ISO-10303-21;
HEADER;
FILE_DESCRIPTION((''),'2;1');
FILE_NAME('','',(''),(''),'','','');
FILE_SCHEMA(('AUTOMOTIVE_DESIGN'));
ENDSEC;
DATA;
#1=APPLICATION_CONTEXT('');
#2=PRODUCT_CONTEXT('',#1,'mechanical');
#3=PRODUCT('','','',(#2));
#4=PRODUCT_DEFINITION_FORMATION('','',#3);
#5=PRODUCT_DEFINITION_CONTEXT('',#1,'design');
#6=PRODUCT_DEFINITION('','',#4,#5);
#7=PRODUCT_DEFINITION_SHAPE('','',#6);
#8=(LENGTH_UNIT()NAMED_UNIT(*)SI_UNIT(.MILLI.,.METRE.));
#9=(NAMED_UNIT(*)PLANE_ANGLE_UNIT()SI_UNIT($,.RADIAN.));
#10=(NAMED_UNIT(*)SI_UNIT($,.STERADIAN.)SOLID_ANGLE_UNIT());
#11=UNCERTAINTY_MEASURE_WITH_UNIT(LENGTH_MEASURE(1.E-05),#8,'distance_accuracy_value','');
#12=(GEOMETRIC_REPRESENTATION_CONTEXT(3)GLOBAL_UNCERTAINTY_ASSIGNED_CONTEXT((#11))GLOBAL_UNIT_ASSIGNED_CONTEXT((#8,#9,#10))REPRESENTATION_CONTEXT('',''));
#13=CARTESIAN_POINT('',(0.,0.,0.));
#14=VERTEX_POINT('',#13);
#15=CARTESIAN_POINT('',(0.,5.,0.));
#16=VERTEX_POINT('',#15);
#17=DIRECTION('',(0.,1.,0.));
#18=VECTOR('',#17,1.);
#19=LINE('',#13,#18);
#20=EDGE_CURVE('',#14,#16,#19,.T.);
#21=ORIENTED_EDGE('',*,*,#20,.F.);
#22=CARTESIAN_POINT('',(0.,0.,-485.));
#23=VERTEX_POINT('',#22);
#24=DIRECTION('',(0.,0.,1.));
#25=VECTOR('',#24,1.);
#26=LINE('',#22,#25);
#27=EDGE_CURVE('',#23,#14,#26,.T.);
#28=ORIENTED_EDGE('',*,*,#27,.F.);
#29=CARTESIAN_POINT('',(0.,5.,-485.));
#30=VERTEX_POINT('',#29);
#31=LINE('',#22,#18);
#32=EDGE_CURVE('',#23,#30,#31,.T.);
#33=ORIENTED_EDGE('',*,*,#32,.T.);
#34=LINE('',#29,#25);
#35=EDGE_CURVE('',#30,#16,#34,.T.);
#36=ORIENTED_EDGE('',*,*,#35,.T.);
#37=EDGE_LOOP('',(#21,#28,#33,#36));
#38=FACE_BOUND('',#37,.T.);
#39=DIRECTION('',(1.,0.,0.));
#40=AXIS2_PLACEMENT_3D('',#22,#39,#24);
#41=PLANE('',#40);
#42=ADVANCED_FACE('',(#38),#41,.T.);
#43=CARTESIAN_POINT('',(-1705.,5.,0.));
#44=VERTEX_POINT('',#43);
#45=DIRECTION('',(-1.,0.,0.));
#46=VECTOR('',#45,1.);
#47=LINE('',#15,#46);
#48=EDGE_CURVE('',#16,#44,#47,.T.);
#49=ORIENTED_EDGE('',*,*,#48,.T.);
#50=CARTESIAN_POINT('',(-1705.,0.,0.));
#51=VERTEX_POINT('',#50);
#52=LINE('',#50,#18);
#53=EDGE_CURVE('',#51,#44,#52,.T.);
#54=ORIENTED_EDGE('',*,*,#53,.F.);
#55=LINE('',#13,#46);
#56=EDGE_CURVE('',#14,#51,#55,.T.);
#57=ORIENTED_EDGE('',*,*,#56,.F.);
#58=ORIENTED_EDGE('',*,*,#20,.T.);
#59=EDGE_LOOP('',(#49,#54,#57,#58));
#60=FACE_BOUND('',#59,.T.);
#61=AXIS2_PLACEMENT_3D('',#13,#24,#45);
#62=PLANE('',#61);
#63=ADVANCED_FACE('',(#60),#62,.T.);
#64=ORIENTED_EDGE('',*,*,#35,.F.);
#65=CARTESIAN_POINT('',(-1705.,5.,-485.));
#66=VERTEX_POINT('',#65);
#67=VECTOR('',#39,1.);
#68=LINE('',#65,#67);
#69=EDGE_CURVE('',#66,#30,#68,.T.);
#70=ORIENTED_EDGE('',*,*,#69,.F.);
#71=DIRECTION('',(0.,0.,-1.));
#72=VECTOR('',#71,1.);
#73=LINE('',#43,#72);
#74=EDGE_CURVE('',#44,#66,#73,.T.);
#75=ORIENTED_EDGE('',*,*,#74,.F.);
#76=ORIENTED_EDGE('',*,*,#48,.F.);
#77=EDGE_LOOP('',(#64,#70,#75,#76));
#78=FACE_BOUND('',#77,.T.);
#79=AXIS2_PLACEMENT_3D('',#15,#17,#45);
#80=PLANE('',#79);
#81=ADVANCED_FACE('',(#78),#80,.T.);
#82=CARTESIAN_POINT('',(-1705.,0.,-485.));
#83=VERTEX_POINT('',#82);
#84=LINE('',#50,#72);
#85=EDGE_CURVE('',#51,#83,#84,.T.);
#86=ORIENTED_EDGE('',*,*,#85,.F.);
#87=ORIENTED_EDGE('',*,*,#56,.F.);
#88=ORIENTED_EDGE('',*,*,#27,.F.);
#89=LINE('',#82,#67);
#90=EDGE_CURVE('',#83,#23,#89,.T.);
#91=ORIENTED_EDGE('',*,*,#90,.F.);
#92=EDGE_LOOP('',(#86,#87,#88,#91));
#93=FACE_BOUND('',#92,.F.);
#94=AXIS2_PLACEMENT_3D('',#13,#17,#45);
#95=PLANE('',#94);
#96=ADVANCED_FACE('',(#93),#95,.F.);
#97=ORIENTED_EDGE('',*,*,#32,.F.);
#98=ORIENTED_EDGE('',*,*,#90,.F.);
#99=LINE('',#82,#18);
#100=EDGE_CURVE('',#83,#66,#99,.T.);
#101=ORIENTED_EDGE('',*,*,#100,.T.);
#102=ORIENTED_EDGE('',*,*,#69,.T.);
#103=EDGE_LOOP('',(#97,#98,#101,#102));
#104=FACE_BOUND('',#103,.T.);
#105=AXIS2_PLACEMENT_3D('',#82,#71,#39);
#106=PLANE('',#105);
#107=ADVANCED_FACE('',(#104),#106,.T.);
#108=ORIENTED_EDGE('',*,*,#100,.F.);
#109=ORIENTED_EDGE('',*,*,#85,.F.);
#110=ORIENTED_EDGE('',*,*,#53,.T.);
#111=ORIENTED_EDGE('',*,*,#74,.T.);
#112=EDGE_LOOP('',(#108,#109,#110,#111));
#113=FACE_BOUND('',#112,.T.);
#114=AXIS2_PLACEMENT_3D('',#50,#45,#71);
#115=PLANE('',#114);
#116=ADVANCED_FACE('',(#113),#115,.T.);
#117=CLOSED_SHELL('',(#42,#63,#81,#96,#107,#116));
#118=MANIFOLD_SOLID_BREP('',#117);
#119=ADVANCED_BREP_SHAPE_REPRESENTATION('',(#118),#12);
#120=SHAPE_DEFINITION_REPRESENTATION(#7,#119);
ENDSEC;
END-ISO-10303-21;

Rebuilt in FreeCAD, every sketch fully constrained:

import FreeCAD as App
import Part
import Sketcher

V = App.Vector
Q = App.Units.Quantity

doc = App.newDocument("Part")
body = doc.addObject("PartDesign::Body", "Body")

# Sketch on XZ plane
sketch1 = doc.addObject("Sketcher::SketchObject", "Sketch")
body.addObject(sketch1)
sketch1.AttachmentSupport = (doc.XZ_Plane, [""])
sketch1.MapMode = "FlatFace"
sketch1.addGeometry([
    Part.LineSegment(V(-1705, 0, 0), V(0, 0, 0)),
    Part.LineSegment(V(0, 0, 0), V(0, -485, 0)),
    Part.LineSegment(V(0, -485, 0), V(-1705, -485, 0)),
    Part.LineSegment(V(-1705, -485, 0), V(-1705, 0, 0)),
], False)
sketch1.addConstraint([
    Sketcher.Constraint("Coincident", 0, 2, 1, 1),
    Sketcher.Constraint("Coincident", 1, 2, 2, 1),
    Sketcher.Constraint("Coincident", 2, 2, 3, 1),
    Sketcher.Constraint("Coincident", 3, 2, 0, 1),
    Sketcher.Constraint("Horizontal", 0),
    Sketcher.Constraint("Vertical", 1),
    Sketcher.Constraint("Horizontal", 2),
    Sketcher.Constraint("Vertical", 3),
    Sketcher.Constraint("Coincident", 0, 2, -1, 1),
    Sketcher.Constraint("DistanceX", 0, 1, 0, 2, Q("1705 mm")),
    Sketcher.Constraint("DistanceY", 1, 2, 1, 1, Q("485 mm")),
])
pad1 = doc.addObject("PartDesign::Pad", "Pad")
body.addObject(pad1)
pad1.Profile = sketch1
pad1.Length = 5
pad1.Reversed = True

doc.recompute()
